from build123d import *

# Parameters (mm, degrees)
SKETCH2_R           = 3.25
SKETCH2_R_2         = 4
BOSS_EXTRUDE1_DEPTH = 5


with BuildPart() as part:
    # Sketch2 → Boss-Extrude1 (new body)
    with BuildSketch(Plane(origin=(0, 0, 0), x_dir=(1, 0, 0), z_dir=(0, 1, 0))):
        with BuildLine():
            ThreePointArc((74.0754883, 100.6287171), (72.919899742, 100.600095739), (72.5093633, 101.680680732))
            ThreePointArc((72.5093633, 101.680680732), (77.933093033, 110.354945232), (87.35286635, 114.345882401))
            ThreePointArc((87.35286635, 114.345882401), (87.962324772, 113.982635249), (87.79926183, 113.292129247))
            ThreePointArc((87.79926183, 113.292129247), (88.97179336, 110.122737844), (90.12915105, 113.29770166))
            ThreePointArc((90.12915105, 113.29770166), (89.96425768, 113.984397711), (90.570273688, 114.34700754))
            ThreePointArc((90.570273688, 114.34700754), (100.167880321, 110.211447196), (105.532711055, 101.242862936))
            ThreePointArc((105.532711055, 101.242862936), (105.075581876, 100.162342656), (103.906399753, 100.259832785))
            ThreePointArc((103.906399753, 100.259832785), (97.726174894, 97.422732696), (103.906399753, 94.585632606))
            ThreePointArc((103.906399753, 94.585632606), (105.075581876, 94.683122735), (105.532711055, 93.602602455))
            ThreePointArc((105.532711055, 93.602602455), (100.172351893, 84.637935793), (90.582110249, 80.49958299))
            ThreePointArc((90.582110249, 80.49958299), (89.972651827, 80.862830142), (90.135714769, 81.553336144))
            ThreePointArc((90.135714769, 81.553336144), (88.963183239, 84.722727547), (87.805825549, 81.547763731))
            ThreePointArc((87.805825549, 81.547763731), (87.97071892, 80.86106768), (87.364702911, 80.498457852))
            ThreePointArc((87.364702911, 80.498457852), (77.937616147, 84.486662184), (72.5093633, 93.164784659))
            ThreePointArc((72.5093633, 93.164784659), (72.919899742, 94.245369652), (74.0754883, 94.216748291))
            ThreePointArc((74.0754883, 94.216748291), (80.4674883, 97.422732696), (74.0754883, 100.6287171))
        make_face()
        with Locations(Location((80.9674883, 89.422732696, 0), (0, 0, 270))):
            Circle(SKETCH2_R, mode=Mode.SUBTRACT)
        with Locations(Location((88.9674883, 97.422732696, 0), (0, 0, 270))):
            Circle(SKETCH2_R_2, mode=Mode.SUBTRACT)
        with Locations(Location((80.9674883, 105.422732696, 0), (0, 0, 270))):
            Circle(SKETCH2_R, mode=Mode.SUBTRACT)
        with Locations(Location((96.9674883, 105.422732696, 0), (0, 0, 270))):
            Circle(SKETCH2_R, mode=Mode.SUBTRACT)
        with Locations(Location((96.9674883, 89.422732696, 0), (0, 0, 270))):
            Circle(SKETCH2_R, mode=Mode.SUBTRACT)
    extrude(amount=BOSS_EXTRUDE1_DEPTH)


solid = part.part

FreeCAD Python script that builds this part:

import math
import FreeCAD as App
import Part
import Sketcher

V = App.Vector

doc = App.newDocument("Part")
body = doc.addObject("PartDesign::Body", "Body")

# Sketch on XZ plane
sketch1 = body.newObject("Sketcher::SketchObject", "Sketch")
sketch1.AttachmentSupport = (doc.getObject("XZ_Plane"), [""])
sketch1.MapMode = "FlatFace"
sketch1.addGeometry(Part.ArcOfCircle(Part.Circle(V(73.5, -101.4, 0), V(0, 0, 1), 1), math.radians(53), math.radians(195)), False)
sketch1.addGeometry(Part.ArcOfCircle(Part.Circle(V(76.5, -97.4, 0), V(0, 0, 1), 4), math.radians(-127), math.radians(127)), False)
sketch1.addGeometry(Part.ArcOfCircle(Part.Circle(V(73.5, -93.4, 0), V(0, 0, 1), 1), math.radians(165), math.radians(307)), False)
sketch1.addGeometry(Part.ArcOfCircle(Part.Circle(V(89, -97.4, 0), V(0, 0, 1), 17), math.radians(95), math.radians(165)), False)
sketch1.addGeometry(Part.ArcOfCircle(Part.Circle(V(87.4, -81.1, 0), V(0, 0, 1), 0.6), math.radians(-50), math.radians(95)), False)
sketch1.addGeometry(Part.ArcOfCircle(Part.Circle(V(89, -82.9, 0), V(0, 0, 1), 1.8), math.radians(130), math.radians(410)), False)
sketch1.addGeometry(Part.ArcOfCircle(Part.Circle(V(90.5, -81.1, 0), V(0, 0, 1), 0.6), math.radians(85), math.radians(230)), False)
sketch1.addGeometry(Part.ArcOfCircle(Part.Circle(V(89, -97.4, 0), V(0, 0, 1), 17), math.radians(13), math.radians(85)), False)
sketch1.addGeometry(Part.ArcOfCircle(Part.Circle(V(104.6, -93.8, 0), V(0, 0, 1), 1), math.radians(-131), math.radians(13)), False)
sketch1.addGeometry(Part.ArcOfCircle(Part.Circle(V(101.5, -97.4, 0), V(0, 0, 1), 3.7), math.radians(49), math.radians(311)), False)
sketch1.addGeometry(Part.ArcOfCircle(Part.Circle(V(104.6, -101, 0), V(0, 0, 1), 1), math.radians(-13), math.radians(131)), False)
sketch1.addGeometry(Part.ArcOfCircle(Part.Circle(V(89, -97.4, 0), V(0, 0, 1), 17), math.radians(-85), math.radians(-13)), False)
sketch1.addGeometry(Part.ArcOfCircle(Part.Circle(V(90.5, -113.8, 0), V(0, 0, 1), 0.6), math.radians(130), math.radians(275)), False)
sketch1.addGeometry(Part.ArcOfCircle(Part.Circle(V(89, -111.9, 0), V(0, 0, 1), 1.8), math.radians(-50), math.radians(230)), False)
sketch1.addGeometry(Part.ArcOfCircle(Part.Circle(V(87.4, -113.7, 0), V(0, 0, 1), 0.6), math.radians(-95), math.radians(50)), False)
sketch1.addGeometry(Part.ArcOfCircle(Part.Circle(V(89, -97.4, 0), V(0, 0, 1), 17), math.radians(-165), math.radians(-95)), False)
sketch1.addGeometry(Part.Circle(V(97, -89.4, 0), V(0, 0, 1), 3.2), False)
sketch1.addGeometry(Part.Circle(V(81, -89.4, 0), V(0, 0, 1), 3.2), False)
sketch1.addGeometry(Part.Circle(V(97, -105.4, 0), V(0, 0, 1), 3.2), False)
sketch1.addGeometry(Part.Circle(V(89, -97.4, 0), V(0, 0, 1), 4), False)
sketch1.addGeometry(Part.Circle(V(81, -105.4, 0), V(0, 0, 1), 3.2), False)
sketch1.addConstraint(Sketcher.Constraint("Tangent", 0, 1, 1, 1))
sketch1.addConstraint(Sketcher.Constraint("Tangent", 1, 2, 2, 2))
sketch1.addConstraint(Sketcher.Constraint("Tangent", 2, 1, 3, 2))
sketch1.addConstraint(Sketcher.Constraint("Tangent", 3, 1, 4, 2))
sketch1.addConstraint(Sketcher.Constraint("Tangent", 4, 1, 5, 1))
sketch1.addConstraint(Sketcher.Constraint("Tangent", 5, 2, 6, 2))
sketch1.addConstraint(Sketcher.Constraint("Tangent", 6, 1, 7, 2))
sketch1.addConstraint(Sketcher.Constraint("Tangent", 7, 1, 8, 2))
sketch1.addConstraint(Sketcher.Constraint("Tangent", 8, 1, 9, 1))
sketch1.addConstraint(Sketcher.Constraint("Tangent", 9, 2, 10, 2))
sketch1.addConstraint(Sketcher.Constraint("Tangent", 10, 1, 11, 2))
sketch1.addConstraint(Sketcher.Constraint("Tangent", 11, 1, 12, 2))
sketch1.addConstraint(Sketcher.Constraint("Tangent", 12, 1, 13, 1))
sketch1.addConstraint(Sketcher.Constraint("Tangent", 13, 2, 14, 2))
sketch1.addConstraint(Sketcher.Constraint("Tangent", 14, 1, 15, 2))
sketch1.addConstraint(Sketcher.Constraint("Tangent", 15, 1, 0, 2))
sketch1.addConstraint(Sketcher.Constraint("Coincident", 7, 3, 3, 3))
sketch1.addConstraint(Sketcher.Constraint("Coincident", 11, 3, 3, 3))
sketch1.addConstraint(Sketcher.Constraint("Coincident", 15, 3, 3, 3))
sketch1.addConstraint(Sketcher.Constraint("Coincident", 19, 3, 3, 3))
sketch1.addConstraint(Sketcher.Constraint("Equal", 0, 2))
sketch1.addConstraint(Sketcher.Constraint("Equal", 3, 7))
sketch1.addConstraint(Sketcher.Constraint("Equal", 2, 8))
sketch1.addConstraint(Sketcher.Constraint("Equal", 8, 10))
sketch1.addConstraint(Sketcher.Constraint("Equal", 7, 11))
sketch1.addConstraint(Sketcher.Constraint("Equal", 4, 12))
sketch1.addConstraint(Sketcher.Constraint("Equal", 5, 13))
sketch1.addConstraint(Sketcher.Constraint("Equal", 6, 14))
sketch1.addConstraint(Sketcher.Constraint("Equal", 11, 15))
sketch1.addConstraint(Sketcher.Constraint("Equal", 16, 17))
sketch1.addConstraint(Sketcher.Constraint("Equal", 17, 18))
sketch1.addConstraint(Sketcher.Constraint("Equal", 1, 19))
sketch1.addConstraint(Sketcher.Constraint("Equal", 18, 20))
sketch1.addConstraint(Sketcher.Constraint("Horizontal", 1, 3, 3, 3))
sketch1.addConstraint(Sketcher.Constraint("Horizontal", 7, 3, 9, 3))
sketch1.addConstraint(Sketcher.Constraint("Horizontal", 16, 3, 17, 3))
sketch1.addConstraint(Sketcher.Constraint("Horizontal", 18, 3, 20, 3))
sketch1.addConstraint(Sketcher.Constraint("Vertical", 3, 3, 5, 3))
sketch1.addConstraint(Sketcher.Constraint("Vertical", 11, 3, 13, 3))
sketch1.addConstraint(Sketcher.Constraint("Vertical", 16, 3, 18, 3))
sketch1.addConstraint(Sketcher.Constraint("Vertical", 17, 3, 20, 3))
sketch1.addConstraint(Sketcher.Constraint("Diameter", 19, 8.0))
sketch1.addConstraint(Sketcher.Constraint("Radius", 0, 1.0))
sketch1.addConstraint(Sketcher.Constraint("Radius", 3, 17.0))
sketch1.addConstraint(Sketcher.Constraint("Diameter", 16, 6.5))
sketch1.addConstraint(Sketcher.Constraint("Radius", 5, 1.8))
sketch1.addConstraint(Sketcher.Constraint("Radius", 6, 0.6))
sketch1.addConstraint(Sketcher.Constraint("DistanceY", 9, 3, 16, 3, 8.0))
sketch1.addConstraint(Sketcher.Constraint("DistanceX", 5, 3, 16, 3, 8.0))
sketch1.addConstraint(Sketcher.Constraint("DistanceX", 17, 3, 5, 3, 8.0))
sketch1.addConstraint(Sketcher.Constraint("DistanceY", 18, 3, 9, 3, 8.0))
sketch1.addConstraint(Sketcher.Constraint("DistanceX", 1, 3, 3, 3, 12.5))
sketch1.addConstraint(Sketcher.Constraint("DistanceY", 3, 3, 5, 3, 14.5))
sketch1.addConstraint(Sketcher.Constraint("DistanceX", 3, 3, 9, 3, 12.5))
sketch1.addConstraint(Sketcher.Constraint("DistanceY", 13, 3, 11, 3, 14.5))
sketch1.addConstraint(Sketcher.Constraint("Radius", 4, 0.596394))
sketch1.addConstraint(Sketcher.Constraint("Radius", 9, 3.741313))
sketch1.addConstraint(Sketcher.Constraint("DistanceX", -1, 1, 8, 1, 103.9064))
sketch1.addConstraint(Sketcher.Constraint("DistanceY", 12, 1, -1, 1, 113.297702))
pad1 = body.newObject("PartDesign::Pad", "Pad")
pad1.Profile = sketch1
pad1.Length = 5
pad1.Reversed = True

doc.recompute()
